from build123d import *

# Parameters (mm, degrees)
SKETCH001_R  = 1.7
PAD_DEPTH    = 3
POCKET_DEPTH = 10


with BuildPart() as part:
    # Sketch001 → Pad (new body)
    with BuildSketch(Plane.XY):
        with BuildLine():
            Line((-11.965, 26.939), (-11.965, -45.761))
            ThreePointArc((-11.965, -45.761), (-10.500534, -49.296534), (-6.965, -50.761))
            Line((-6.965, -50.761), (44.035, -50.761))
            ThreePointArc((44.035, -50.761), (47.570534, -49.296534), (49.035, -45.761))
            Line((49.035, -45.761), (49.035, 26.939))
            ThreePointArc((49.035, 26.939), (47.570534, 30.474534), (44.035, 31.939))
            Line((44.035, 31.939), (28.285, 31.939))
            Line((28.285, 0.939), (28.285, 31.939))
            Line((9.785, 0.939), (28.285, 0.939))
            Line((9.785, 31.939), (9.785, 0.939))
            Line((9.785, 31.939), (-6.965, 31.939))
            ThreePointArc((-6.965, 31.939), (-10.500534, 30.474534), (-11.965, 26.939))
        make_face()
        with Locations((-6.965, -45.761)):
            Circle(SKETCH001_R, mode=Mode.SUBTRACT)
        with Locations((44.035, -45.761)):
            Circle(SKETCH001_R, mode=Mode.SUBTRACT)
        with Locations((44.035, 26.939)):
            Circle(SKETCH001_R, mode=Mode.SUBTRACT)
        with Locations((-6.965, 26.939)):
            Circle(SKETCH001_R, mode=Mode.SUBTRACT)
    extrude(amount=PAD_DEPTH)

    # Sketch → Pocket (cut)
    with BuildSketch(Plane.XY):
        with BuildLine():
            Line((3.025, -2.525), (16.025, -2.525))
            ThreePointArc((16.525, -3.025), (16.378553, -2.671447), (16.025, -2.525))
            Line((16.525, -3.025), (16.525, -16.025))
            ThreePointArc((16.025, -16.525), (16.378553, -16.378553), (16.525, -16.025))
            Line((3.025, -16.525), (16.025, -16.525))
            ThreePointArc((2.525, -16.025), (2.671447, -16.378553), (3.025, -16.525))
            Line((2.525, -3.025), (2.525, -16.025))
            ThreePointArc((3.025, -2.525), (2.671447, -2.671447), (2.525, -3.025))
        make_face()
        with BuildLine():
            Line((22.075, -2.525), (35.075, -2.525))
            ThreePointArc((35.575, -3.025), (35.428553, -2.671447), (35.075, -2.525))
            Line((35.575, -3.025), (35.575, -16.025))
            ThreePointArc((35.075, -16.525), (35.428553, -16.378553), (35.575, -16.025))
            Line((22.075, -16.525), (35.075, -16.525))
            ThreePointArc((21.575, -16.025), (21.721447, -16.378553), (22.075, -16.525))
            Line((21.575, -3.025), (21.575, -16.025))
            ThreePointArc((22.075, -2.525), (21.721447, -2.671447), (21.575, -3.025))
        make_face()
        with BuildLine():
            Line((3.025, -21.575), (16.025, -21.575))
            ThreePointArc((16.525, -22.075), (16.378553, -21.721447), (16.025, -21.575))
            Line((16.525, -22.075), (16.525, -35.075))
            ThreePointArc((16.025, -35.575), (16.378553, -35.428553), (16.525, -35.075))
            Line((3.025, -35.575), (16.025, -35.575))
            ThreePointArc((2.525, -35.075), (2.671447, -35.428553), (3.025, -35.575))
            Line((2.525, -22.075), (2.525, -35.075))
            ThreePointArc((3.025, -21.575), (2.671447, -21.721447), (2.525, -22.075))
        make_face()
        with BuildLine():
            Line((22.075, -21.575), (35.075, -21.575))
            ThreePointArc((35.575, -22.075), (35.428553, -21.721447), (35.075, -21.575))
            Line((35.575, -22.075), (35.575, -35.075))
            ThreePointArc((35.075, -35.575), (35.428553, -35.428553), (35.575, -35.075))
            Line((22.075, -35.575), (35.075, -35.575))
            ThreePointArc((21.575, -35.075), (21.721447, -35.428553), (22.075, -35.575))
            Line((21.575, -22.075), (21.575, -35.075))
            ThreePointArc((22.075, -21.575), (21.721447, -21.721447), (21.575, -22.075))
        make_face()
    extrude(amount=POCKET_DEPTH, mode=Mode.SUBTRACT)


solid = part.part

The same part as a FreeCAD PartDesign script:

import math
import FreeCAD as App
import Part
import Sketcher

V = App.Vector
Q = App.Units.Quantity

doc = App.newDocument("Part")
body = doc.addObject("PartDesign::Body", "Body")

# Sketch on XY plane
sketch1 = body.newObject("Sketcher::SketchObject", "Sketch")
sketch1.AttachmentSupport = (doc.getObject("XY_Plane"), [""])
sketch1.MapMode = "FlatFace"
sketch1.addGeometry([
    Part.LineSegment(V(-12, 26.9, 0), V(-12, -45.8, 0)),  # 0
    Part.ArcOfCircle(Part.Circle(V(-7, -45.8, 0), V(0, 0, 1), 5), math.radians(180), math.radians(270)),  # 1
    Part.LineSegment(V(-7, -50.8, 0), V(44, -50.8, 0)),  # 2
    Part.ArcOfCircle(Part.Circle(V(44, -45.8, 0), V(0, 0, 1), 5), math.radians(-90), math.radians(0)),  # 3
    Part.LineSegment(V(49, -45.8, 0), V(49, 26.9, 0)),  # 4
    Part.ArcOfCircle(Part.Circle(V(44, 26.9, 0), V(0, 0, 1), 5), math.radians(0), math.radians(90)),  # 5
    Part.LineSegment(V(44, 31.9, 0), V(28.3, 31.9, 0)),  # 6
    Part.LineSegment(V(28.3, 31.9, 0), V(28.3, 0.9, 0)),  # 7
    Part.LineSegment(V(28.3, 0.9, 0), V(9.8, 0.9, 0)),  # 8
    Part.LineSegment(V(9.8, 0.9, 0), V(9.8, 31.9, 0)),  # 9
    Part.LineSegment(V(9.8, 31.9, 0), V(-7, 31.9, 0)),  # 10
    Part.ArcOfCircle(Part.Circle(V(-7, 26.9, 0), V(0, 0, 1), 5), math.radians(90), math.radians(180)),  # 11
    Part.Circle(V(-7, -45.8, 0), V(0, 0, 1), 1.7),  # 12
    Part.Circle(V(44, -45.8, 0), V(0, 0, 1), 1.7),  # 13
    Part.Circle(V(-7, 26.9, 0), V(0, 0, 1), 1.7),  # 14
    Part.Circle(V(44, 26.9, 0), V(0, 0, 1), 1.7),  # 15
], False)
sketch1.addConstraint([
    Sketcher.Constraint("Tangent", 0, 2, 1, 1),
    Sketcher.Constraint("Tangent", 1, 2, 2, 1),
    Sketcher.Constraint("Tangent", 2, 2, 3, 1),
    Sketcher.Constraint("Tangent", 3, 2, 4, 1),
    Sketcher.Constraint("Tangent", 4, 2, 5, 1),
    Sketcher.Constraint("Tangent", 5, 2, 6, 1),
    Sketcher.Constraint("Coincident", 6, 2, 7, 1),
    Sketcher.Constraint("Coincident", 7, 2, 8, 1),
    Sketcher.Constraint("Coincident", 8, 2, 9, 1),
    Sketcher.Constraint("Coincident", 9, 2, 10, 1),
    Sketcher.Constraint("Tangent", 10, 2, 11, 1),
    Sketcher.Constraint("Tangent", 11, 2, 0, 1),
    Sketcher.Constraint("Vertical", 0),
    Sketcher.Constraint("Horizontal", 2),
    Sketcher.Constraint("Vertical", 4),
    Sketcher.Constraint("Horizontal", 6),
    Sketcher.Constraint("Vertical", 7),
    Sketcher.Constraint("Horizontal", 8),
    Sketcher.Constraint("Vertical", 9),
    Sketcher.Constraint("Horizontal", 10),
    Sketcher.Constraint("Coincident", 12, 3, 1, 3),
    Sketcher.Constraint("Coincident", 13, 3, 3, 3),
    Sketcher.Constraint("Coincident", 14, 3, 11, 3),
    Sketcher.Constraint("Coincident", 15, 3, 5, 3),
    Sketcher.Constraint("Equal", 1, 3),
    Sketcher.Constraint("Equal", 3, 5),
    Sketcher.Constraint("Equal", 5, 11),
    Sketcher.Constraint("Equal", 12, 13),
    Sketcher.Constraint("Equal", 13, 14),
    Sketcher.Constraint("Equal", 14, 15),
    Sketcher.Constraint("Horizontal", 5, 3, 11, 3),
    Sketcher.Constraint("Radius", 1, Q("5 mm")),
    Sketcher.Constraint("Diameter", 12, Q("3.4 mm")),
    Sketcher.Constraint("DistanceX", 2, 1, 2, 2, Q("51 mm")),
    Sketcher.Constraint("DistanceY", 7, 2, 7, 1, Q("31 mm")),
    Sketcher.Constraint("DistanceX", 8, 2, 8, 1, Q("18.5 mm")),
    Sketcher.Constraint("DistanceY", 0, 2, 0, 1, Q("72.7 mm")),
    Sketcher.Constraint("DistanceX", 6, 2, 6, 1, Q("15.75 mm")),
    Sketcher.Constraint("DistanceX", 1, 3, -1, 1, Q("6.965 mm")),
    Sketcher.Constraint("DistanceY", 1, 3, -1, 1, Q("45.761 mm")),
])
pad1 = body.newObject("PartDesign::Pad", "Pad")
pad1.Profile = sketch1
pad1.Length = 3

# Sketch on XY plane
sketch2 = body.newObject("Sketcher::SketchObject", "Sketch001")
sketch2.AttachmentSupport = (doc.getObject("XY_Plane"), [""])
sketch2.MapMode = "FlatFace"
sketch2.addGeometry([
    Part.LineSegment(V(16, -2.5, 0), V(3, -2.5, 0)),  # 0
    Part.ArcOfCircle(Part.Circle(V(3, -3, 0), V(0, 0, 1), 0.5), math.radians(90), math.radians(180)),  # 1
    Part.LineSegment(V(2.5, -3, 0), V(2.5, -16, 0)),  # 2
    Part.ArcOfCircle(Part.Circle(V(3, -16, 0), V(0, 0, 1), 0.5), math.radians(-180), math.radians(-90)),  # 3
    Part.LineSegment(V(3, -16.5, 0), V(16, -16.5, 0)),  # 4
    Part.ArcOfCircle(Part.Circle(V(16, -16, 0), V(0, 0, 1), 0.5), math.radians(-90), math.radians(0)),  # 5
    Part.LineSegment(V(16.5, -16, 0), V(16.5, -3, 0)),  # 6
    Part.ArcOfCircle(Part.Circle(V(16, -3, 0), V(0, 0, 1), 0.5), math.radians(0), math.radians(90)),  # 7
    Part.LineSegment(V(35.1, -2.5, 0), V(22.1, -2.5, 0)),  # 8
    Part.ArcOfCircle(Part.Circle(V(22.1, -3, 0), V(0, 0, 1), 0.5), math.radians(90), math.radians(180)),  # 9
    Part.LineSegment(V(21.6, -3, 0), V(21.6, -16, 0)),  # 10
    Part.ArcOfCircle(Part.Circle(V(22.1, -16, 0), V(0, 0, 1), 0.5), math.radians(-180), math.radians(-90)),  # 11
    Part.LineSegment(V(22.1, -16.5, 0), V(35.1, -16.5, 0)),  # 12
    Part.ArcOfCircle(Part.Circle(V(35.1, -16, 0), V(0, 0, 1), 0.5), math.radians(-90), math.radians(0)),  # 13
    Part.LineSegment(V(35.6, -16, 0), V(35.6, -3, 0)),  # 14
    Part.ArcOfCircle(Part.Circle(V(35.1, -3, 0), V(0, 0, 1), 0.5), math.radians(0), math.radians(90)),  # 15
    Part.LineSegment(V(16, -21.6, 0), V(3, -21.6, 0)),  # 16
    Part.ArcOfCircle(Part.Circle(V(3, -22.1, 0), V(0, 0, 1), 0.5), math.radians(90), math.radians(180)),  # 17
    Part.LineSegment(V(2.5, -22.1, 0), V(2.5, -35.1, 0)),  # 18
    Part.ArcOfCircle(Part.Circle(V(3, -35.1, 0), V(0, 0, 1), 0.5), math.radians(-180), math.radians(-90)),  # 19
    Part.LineSegment(V(3, -35.6, 0), V(16, -35.6, 0)),  # 20
    Part.ArcOfCircle(Part.Circle(V(16, -35.1, 0), V(0, 0, 1), 0.5), math.radians(-90), math.radians(0)),  # 21
    Part.LineSegment(V(16.5, -35.1, 0), V(16.5, -22.1, 0)),  # 22
    Part.ArcOfCircle(Part.Circle(V(16, -22.1, 0), V(0, 0, 1), 0.5), math.radians(0), math.radians(90)),  # 23
    Part.LineSegment(V(35.1, -21.6, 0), V(22.1, -21.6, 0)),  # 24
    Part.ArcOfCircle(Part.Circle(V(22.1, -22.1, 0), V(0, 0, 1), 0.5), math.radians(90), math.radians(180)),  # 25
    Part.LineSegment(V(21.6, -22.1, 0), V(21.6, -35.1, 0)),  # 26
    Part.ArcOfCircle(Part.Circle(V(22.1, -35.1, 0), V(0, 0, 1), 0.5), math.radians(-180), math.radians(-90)),  # 27
    Part.LineSegment(V(22.1, -35.6, 0), V(35.1, -35.6, 0)),  # 28
    Part.ArcOfCircle(Part.Circle(V(35.1, -35.1, 0), V(0, 0, 1), 0.5), math.radians(-90), math.radians(0)),  # 29
    Part.LineSegment(V(35.6, -35.1, 0), V(35.6, -22.1, 0)),  # 30
    Part.ArcOfCircle(Part.Circle(V(35.1, -22.1, 0), V(0, 0, 1), 0.5), math.radians(0), math.radians(90)),  # 31
], False)
sketch2.addConstraint([
    Sketcher.Constraint("Coincident", 0, 2, 1, 1),
    Sketcher.Constraint("Coincident", 1, 2, 2, 1),
    Sketcher.Constraint("Coincident", 2, 2, 3, 1),
    Sketcher.Constraint("Coincident", 3, 2, 4, 1),
    Sketcher.Constraint("Coincident", 4, 2, 5, 1),
    Sketcher.Constraint("Coincident", 5, 2, 6, 1),
    Sketcher.Constraint("Coincident", 6, 2, 7, 1),
    Sketcher.Constraint("Coincident", 7, 2, 0, 1),
    Sketcher.Constraint("Coincident", 8, 2, 9, 1),
    Sketcher.Constraint("Coincident", 9, 2, 10, 1),
    Sketcher.Constraint("Coincident", 10, 2, 11, 1),
    Sketcher.Constraint("Coincident", 11, 2, 12, 1),
    Sketcher.Constraint("Coincident", 12, 2, 13, 1),
    Sketcher.Constraint("Coincident", 13, 2, 14, 1),
    Sketcher.Constraint("Coincident", 14, 2, 15, 1),
    Sketcher.Constraint("Coincident", 15, 2, 8, 1),
    Sketcher.Constraint("Coincident", 16, 2, 17, 1),
    Sketcher.Constraint("Coincident", 17, 2, 18, 1),
    Sketcher.Constraint("Coincident", 18, 2, 19, 1),
    Sketcher.Constraint("Coincident", 19, 2, 20, 1),
    Sketcher.Constraint("Coincident", 20, 2, 21, 1),
    Sketcher.Constraint("Coincident", 21, 2, 22, 1),
    Sketcher.Constraint("Coincident", 22, 2, 23, 1),
    Sketcher.Constraint("Coincident", 23, 2, 16, 1),
    Sketcher.Constraint("Coincident", 24, 2, 25, 1),
    Sketcher.Constraint("Coincident", 25, 2, 26, 1),
    Sketcher.Constraint("Coincident", 26, 2, 27, 1),
    Sketcher.Constraint("Coincident", 27, 2, 28, 1),
    Sketcher.Constraint("Coincident", 28, 2, 29, 1),
    Sketcher.Constraint("Coincident", 29, 2, 30, 1),
    Sketcher.Constraint("Coincident", 30, 2, 31, 1),
    Sketcher.Constraint("Coincident", 31, 2, 24, 1),
    Sketcher.Constraint("Horizontal", 0),
    Sketcher.Constraint("Vertical", 2),
    Sketcher.Constraint("Horizontal", 4),
    Sketcher.Constraint("Vertical", 6),
    Sketcher.Constraint("Horizontal", 8),
    Sketcher.Constraint("Vertical", 10),
    Sketcher.Constraint("Horizontal", 12),
    Sketcher.Constraint("Vertical", 14),
    Sketcher.Constraint("Horizontal", 16),
    Sketcher.Constraint("Vertical", 18),
    Sketcher.Constraint("Horizontal", 20),
    Sketcher.Constraint("Vertical", 22),
    Sketcher.Constraint("Horizontal", 24),
    Sketcher.Constraint("Vertical", 26),
    Sketcher.Constraint("Horizontal", 28),
    Sketcher.Constraint("Vertical", 30),
    Sketcher.Constraint("Equal", 1, 3),
    Sketcher.Constraint("Equal", 3, 5),
    Sketcher.Constraint("Equal", 5, 7),
    Sketcher.Constraint("Equal", 7, 9),
    Sketcher.Constraint("Equal", 9, 11),
    Sketcher.Constraint("Equal", 11, 13),
    Sketcher.Constraint("Equal", 13, 15),
    Sketcher.Constraint("Equal", 15, 17),
    Sketcher.Constraint("Equal", 17, 19),
    Sketcher.Constraint("Equal", 19, 21),
    Sketcher.Constraint("Equal", 21, 23),
    Sketcher.Constraint("Equal", 23, 25),
    Sketcher.Constraint("Equal", 25, 27),
    Sketcher.Constraint("Equal", 27, 29),
    Sketcher.Constraint("Equal", 29, 31),
    Sketcher.Constraint("Horizontal", 7, 3, 9, 3),
    Sketcher.Constraint("Horizontal", 5, 3, 11, 3),
    Sketcher.Constraint("Horizontal", 23, 3, 25, 3),
    Sketcher.Constraint("Horizontal", 21, 3, 27, 3),
    Sketcher.Constraint("Horizontal", 15, 3, 1, 2),
    Sketcher.Constraint("Horizontal", 13, 3, 2, 2),
    Sketcher.Constraint("Horizontal", 2, 2, 5, 2),
    Sketcher.Constraint("Horizontal", 1, 2, 6, 2),
    Sketcher.Constraint("Horizontal", 6, 2, 9, 2),
    Sketcher.Constraint("Horizontal", 5, 2, 10, 2),
    Sketcher.Constraint("Horizontal", 10, 2, 13, 2),
    Sketcher.Constraint("Horizontal", 9, 2, 14, 2),
    Sketcher.Constraint("Horizontal", 31, 3, 17, 2),
    Sketcher.Constraint("Horizontal", 29, 3, 18, 2),
    Sketcher.Constraint("Horizontal", 18, 2, 21, 2),
    Sketcher.Constraint("Horizontal", 17, 2, 22, 2),
    Sketcher.Constraint("Horizontal", 22, 2, 25, 2),
    Sketcher.Constraint("Horizontal", 21, 2, 26, 2),
    Sketcher.Constraint("Horizontal", 26, 2, 29, 2),
    Sketcher.Constraint("Horizontal", 25, 2, 30, 2),
    Sketcher.Constraint("Vertical", 3, 3, 17, 3),
    Sketcher.Constraint("Vertical", 7, 3, 21, 3),
    Sketcher.Constraint("Vertical", 11, 3, 25, 3),
    Sketcher.Constraint("Vertical", 15, 3, 29, 3),
    Sketcher.Constraint("Vertical", 19, 3, 0, 2),
    Sketcher.Constraint("Vertical", 0, 2, 3, 2),
    Sketcher.Constraint("Vertical", 23, 3, 4, 2),
    Sketcher.Constraint("Vertical", 4, 2, 7, 2),
    Sketcher.Constraint("Vertical", 27, 3, 8, 2),
    Sketcher.Constraint("Vertical", 8, 2, 11, 2),
    Sketcher.Constraint("Vertical", 31, 3, 12, 2),
    Sketcher.Constraint("Vertical", 12, 2, 15, 2),
    Sketcher.Constraint("Vertical", 3, 2, 16, 2),
    Sketcher.Constraint("Vertical", 16, 2, 19, 2),
    Sketcher.Constraint("Vertical", 7, 2, 20, 2),
    Sketcher.Constraint("Vertical", 20, 2, 23, 2),
    Sketcher.Constraint("Vertical", 11, 2, 24, 2),
    Sketcher.Constraint("Vertical", 24, 2, 27, 2),
    Sketcher.Constraint("Vertical", 15, 2, 28, 2),
    Sketcher.Constraint("Vertical", 28, 2, 31, 2),
    Sketcher.Constraint("Equal", 4, 8),
    Sketcher.Constraint("Equal", 28, 2),
    Sketcher.Constraint("Equal", 14, 18),
    Sketcher.Constraint("Radius", 1, Q("0.500001 mm")),
    Sketcher.Constraint("DistanceX", 0, 2, 0, 1, Q("13 mm")),
    Sketcher.Constraint("DistanceX", 1, 3, 9, 3, Q("19.05 mm")),
    Sketcher.Constraint("DistanceY", 17, 3, 1, 3, Q("19.05 mm")),
    Sketcher.Constraint("DistanceX", -1, 1, 1, 3, Q("3.025001 mm")),
    Sketcher.Constraint("DistanceY", 1, 3, -1, 1, Q("3.025001 mm")),
])
pocket1 = body.newObject("PartDesign::Pocket", "Pocket")
pocket1.Profile = sketch2
pocket1.Length = 10
pocket1.Reversed = True

doc.recompute()
